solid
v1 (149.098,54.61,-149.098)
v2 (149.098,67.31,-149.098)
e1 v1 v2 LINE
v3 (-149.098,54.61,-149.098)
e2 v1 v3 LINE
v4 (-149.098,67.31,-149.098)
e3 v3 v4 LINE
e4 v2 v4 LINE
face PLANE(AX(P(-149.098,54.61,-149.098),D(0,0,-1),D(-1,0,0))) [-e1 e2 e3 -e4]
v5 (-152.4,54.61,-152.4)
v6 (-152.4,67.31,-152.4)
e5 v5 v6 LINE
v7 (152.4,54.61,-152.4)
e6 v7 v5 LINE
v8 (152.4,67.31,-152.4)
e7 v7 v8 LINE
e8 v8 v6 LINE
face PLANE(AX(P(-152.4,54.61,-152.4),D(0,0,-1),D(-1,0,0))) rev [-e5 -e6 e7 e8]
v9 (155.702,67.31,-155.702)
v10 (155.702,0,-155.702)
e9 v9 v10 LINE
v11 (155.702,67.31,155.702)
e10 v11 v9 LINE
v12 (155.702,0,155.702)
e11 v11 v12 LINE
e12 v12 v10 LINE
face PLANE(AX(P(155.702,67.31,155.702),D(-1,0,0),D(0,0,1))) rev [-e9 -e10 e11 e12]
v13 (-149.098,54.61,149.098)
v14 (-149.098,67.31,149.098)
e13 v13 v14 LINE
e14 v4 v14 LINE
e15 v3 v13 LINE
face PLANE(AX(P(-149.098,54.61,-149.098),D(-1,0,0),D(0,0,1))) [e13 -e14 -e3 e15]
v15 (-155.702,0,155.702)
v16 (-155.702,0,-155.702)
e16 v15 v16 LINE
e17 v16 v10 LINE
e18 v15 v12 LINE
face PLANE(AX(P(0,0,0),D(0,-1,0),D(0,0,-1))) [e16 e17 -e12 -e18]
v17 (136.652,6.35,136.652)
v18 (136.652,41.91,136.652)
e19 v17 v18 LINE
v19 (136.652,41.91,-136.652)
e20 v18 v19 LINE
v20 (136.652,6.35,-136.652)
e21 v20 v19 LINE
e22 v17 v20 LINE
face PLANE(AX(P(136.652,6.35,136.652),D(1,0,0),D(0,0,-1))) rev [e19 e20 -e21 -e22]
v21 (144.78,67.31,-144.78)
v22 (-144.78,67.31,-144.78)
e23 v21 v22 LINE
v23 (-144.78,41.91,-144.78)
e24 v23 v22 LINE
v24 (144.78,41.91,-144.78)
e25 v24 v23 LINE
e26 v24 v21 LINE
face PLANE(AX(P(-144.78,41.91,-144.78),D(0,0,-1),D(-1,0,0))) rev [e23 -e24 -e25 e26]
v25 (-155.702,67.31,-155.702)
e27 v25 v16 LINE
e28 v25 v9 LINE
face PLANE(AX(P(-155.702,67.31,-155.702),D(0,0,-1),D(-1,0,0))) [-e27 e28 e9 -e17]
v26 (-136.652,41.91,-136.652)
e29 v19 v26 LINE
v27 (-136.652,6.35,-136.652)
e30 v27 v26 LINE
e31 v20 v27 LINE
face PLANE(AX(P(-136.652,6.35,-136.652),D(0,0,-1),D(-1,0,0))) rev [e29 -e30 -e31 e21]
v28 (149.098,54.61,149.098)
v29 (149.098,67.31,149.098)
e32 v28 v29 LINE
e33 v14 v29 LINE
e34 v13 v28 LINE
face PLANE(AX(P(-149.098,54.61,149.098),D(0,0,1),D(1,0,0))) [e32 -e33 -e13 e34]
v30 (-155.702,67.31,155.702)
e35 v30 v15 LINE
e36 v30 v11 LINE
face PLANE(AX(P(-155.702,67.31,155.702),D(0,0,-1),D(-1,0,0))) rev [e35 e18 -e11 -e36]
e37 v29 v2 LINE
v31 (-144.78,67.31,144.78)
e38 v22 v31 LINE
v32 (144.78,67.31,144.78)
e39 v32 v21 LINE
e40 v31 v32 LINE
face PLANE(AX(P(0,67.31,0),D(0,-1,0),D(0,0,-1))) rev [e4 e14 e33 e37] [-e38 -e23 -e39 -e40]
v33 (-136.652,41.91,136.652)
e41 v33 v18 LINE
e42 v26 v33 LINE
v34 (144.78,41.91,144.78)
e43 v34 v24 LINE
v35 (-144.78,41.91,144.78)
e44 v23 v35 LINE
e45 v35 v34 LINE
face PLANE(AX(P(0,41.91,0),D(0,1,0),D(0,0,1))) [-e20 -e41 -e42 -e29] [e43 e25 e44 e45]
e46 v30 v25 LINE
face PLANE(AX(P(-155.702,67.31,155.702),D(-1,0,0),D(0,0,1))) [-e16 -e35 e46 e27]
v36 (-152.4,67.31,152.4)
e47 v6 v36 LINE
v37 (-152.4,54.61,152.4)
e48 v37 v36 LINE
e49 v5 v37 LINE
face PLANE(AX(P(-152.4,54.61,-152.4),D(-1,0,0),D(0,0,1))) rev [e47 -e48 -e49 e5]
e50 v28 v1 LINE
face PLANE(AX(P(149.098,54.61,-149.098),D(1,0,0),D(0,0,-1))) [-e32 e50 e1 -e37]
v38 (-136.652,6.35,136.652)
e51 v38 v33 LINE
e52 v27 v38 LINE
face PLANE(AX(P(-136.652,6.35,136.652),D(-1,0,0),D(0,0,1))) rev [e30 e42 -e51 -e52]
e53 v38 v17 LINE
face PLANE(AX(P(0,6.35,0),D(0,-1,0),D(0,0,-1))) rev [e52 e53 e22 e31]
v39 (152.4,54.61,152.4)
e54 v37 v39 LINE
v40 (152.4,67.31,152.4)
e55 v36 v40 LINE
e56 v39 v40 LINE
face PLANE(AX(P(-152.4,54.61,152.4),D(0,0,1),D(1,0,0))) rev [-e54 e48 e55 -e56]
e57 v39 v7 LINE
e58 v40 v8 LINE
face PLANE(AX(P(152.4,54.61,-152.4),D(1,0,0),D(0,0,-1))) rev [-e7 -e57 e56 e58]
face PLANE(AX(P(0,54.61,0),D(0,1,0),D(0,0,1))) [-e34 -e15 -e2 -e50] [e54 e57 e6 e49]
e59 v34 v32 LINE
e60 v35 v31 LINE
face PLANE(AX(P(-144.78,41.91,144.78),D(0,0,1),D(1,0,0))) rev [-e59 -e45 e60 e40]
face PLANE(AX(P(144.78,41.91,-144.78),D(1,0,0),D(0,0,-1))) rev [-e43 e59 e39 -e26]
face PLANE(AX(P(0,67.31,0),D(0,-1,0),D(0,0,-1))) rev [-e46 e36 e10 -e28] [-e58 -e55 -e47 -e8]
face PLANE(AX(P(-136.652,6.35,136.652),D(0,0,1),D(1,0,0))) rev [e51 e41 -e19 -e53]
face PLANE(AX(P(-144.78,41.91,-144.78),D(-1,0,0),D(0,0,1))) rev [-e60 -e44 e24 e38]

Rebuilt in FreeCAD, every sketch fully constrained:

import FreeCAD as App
import Part
import Sketcher
from FreeCAD import Vector
Q = App.Units.Quantity

doc = App.newDocument("Part")
body = doc.addObject("PartDesign::Body", "Body")

# Sketch on XZ plane
sketch1 = body.newObject("Sketcher::SketchObject", "Sketch")
sketch1.AttachmentSupport = (doc.getObject("XZ_Plane"), [""])
sketch1.MapMode = "FlatFace"
sketch1.addGeometry(Part.LineSegment(Vector(-156, -156, 0), Vector(-156, 156, 0)), False)
sketch1.addGeometry(Part.LineSegment(Vector(-156, 156, 0), Vector(156, 156, 0)), False)
sketch1.addGeometry(Part.LineSegment(Vector(156, 156, 0), Vector(156, -156, 0)), False)
sketch1.addGeometry(Part.LineSegment(Vector(156, -156, 0), Vector(-156, -156, 0)), False)
sketch1.addConstraint(Sketcher.Constraint("Coincident", 0, 2, 1, 1))
sketch1.addConstraint(Sketcher.Constraint("Coincident", 1, 2, 2, 1))
sketch1.addConstraint(Sketcher.Constraint("Coincident", 2, 2, 3, 1))
sketch1.addConstraint(Sketcher.Constraint("Coincident", 3, 2, 0, 1))
sketch1.addConstraint(Sketcher.Constraint("Vertical", 0))
sketch1.addConstraint(Sketcher.Constraint("Horizontal", 1))
sketch1.addConstraint(Sketcher.Constraint("Vertical", 2))
sketch1.addConstraint(Sketcher.Constraint("Horizontal", 3))
sketch1.addConstraint(Sketcher.Constraint("Symmetric", 0, 2, 2, 2, -1, 1))
sketch1.addConstraint(Sketcher.Constraint("Equal", 3, 0))
sketch1.addConstraint(Sketcher.Constraint("DistanceX", 1, 1, 1, 2, Q("12.26 in")))
pad1 = body.newObject("PartDesign::Pad", "Pad")
pad1.Profile = sketch1
pad1.Length = Q("2.65 in")
pad1.Reversed = True

# Sketch on XZ plane
sketch2 = body.newObject("Sketcher::SketchObject", "Sketch001")
sketch2.AttachmentSupport = (doc.getObject("XZ_Plane"), [""])
sketch2.MapMode = "FlatFace"
sketch2.AttachmentOffset = App.Placement(Vector(0, 0, -2.65 * 25.4), App.Rotation())
sketch2.addGeometry(Part.LineSegment(Vector(-145, -145, 0), Vector(-145, 145, 0)), False)
sketch2.addGeometry(Part.LineSegment(Vector(-145, 145, 0), Vector(145, 145, 0)), False)
sketch2.addGeometry(Part.LineSegment(Vector(145, 145, 0), Vector(145, -145, 0)), False)
sketch2.addGeometry(Part.LineSegment(Vector(145, -145, 0), Vector(-145, -145, 0)), False)
sketch2.addConstraint(Sketcher.Constraint("Coincident", 0, 2, 1, 1))
sketch2.addConstraint(Sketcher.Constraint("Coincident", 1, 2, 2, 1))
sketch2.addConstraint(Sketcher.Constraint("Coincident", 2, 2, 3, 1))
sketch2.addConstraint(Sketcher.Constraint("Coincident", 3, 2, 0, 1))
sketch2.addConstraint(Sketcher.Constraint("Vertical", 0))
sketch2.addConstraint(Sketcher.Constraint("Horizontal", 1))
sketch2.addConstraint(Sketcher.Constraint("Vertical", 2))
sketch2.addConstraint(Sketcher.Constraint("Horizontal", 3))
sketch2.addConstraint(Sketcher.Constraint("Symmetric", 0, 2, 2, 2, -1, 1))
sketch2.addConstraint(Sketcher.Constraint("Equal", 3, 0))
sketch2.addConstraint(Sketcher.Constraint("DistanceX", 1, 1, 1, 2, Q("11.4 in")))
pocket1 = body.newObject("PartDesign::Pocket", "Pocket")
pocket1.Profile = sketch2
pocket1.Length = Q("1 in")
pocket1.Reversed = True

# Sketch on XZ plane
sketch3 = body.newObject("Sketcher::SketchObject", "Sketch002")
sketch3.AttachmentSupport = (doc.getObject("XZ_Plane"), [""])
sketch3.MapMode = "FlatFace"
sketch3.AttachmentOffset = App.Placement(Vector(0, 0, -2.65 * 25.4), App.Rotation())
sketch3.addGeometry(Part.LineSegment(Vector(-137, -137, 0), Vector(-137, 137, 0)), False)
sketch3.addGeometry(Part.LineSegment(Vector(-137, 137, 0), Vector(137, 137, 0)), False)
sketch3.addGeometry(Part.LineSegment(Vector(137, 137, 0), Vector(137, -137, 0)), False)
sketch3.addGeometry(Part.LineSegment(Vector(137, -137, 0), Vector(-137, -137, 0)), False)
sketch3.addConstraint(Sketcher.Constraint("Coincident", 0, 2, 1, 1))
sketch3.addConstraint(Sketcher.Constraint("Coincident", 1, 2, 2, 1))
sketch3.addConstraint(Sketcher.Constraint("Coincident", 2, 2, 3, 1))
sketch3.addConstraint(Sketcher.Constraint("Coincident", 3, 2, 0, 1))
sketch3.addConstraint(Sketcher.Constraint("Vertical", 0))
sketch3.addConstraint(Sketcher.Constraint("Horizontal", 1))
sketch3.addConstraint(Sketcher.Constraint("Vertical", 2))
sketch3.addConstraint(Sketcher.Constraint("Horizontal", 3))
sketch3.addConstraint(Sketcher.Constraint("Symmetric", 0, 2, 2, 2, -1, 1))
sketch3.addConstraint(Sketcher.Constraint("Equal", 3, 0))
sketch3.addConstraint(Sketcher.Constraint("DistanceX", 1, 1, 1, 2, Q("10.76 in")))
pocket2 = body.newObject("PartDesign::Pocket", "Pocket001")
pocket2.Profile = sketch3
pocket2.Length = Q("2.4 in")
pocket2.Reversed = True

# Sketch on XZ plane
sketch4 = body.newObject("Sketcher::SketchObject", "Sketch003")
sketch4.AttachmentSupport = (doc.getObject("XZ_Plane"), [""])
sketch4.MapMode = "FlatFace"
sketch4.AttachmentOffset = App.Placement(Vector(0, 0, -2.65 * 25.4), App.Rotation())
sketch4.addGeometry(Part.LineSegment(Vector(-152, -152, 0), Vector(-152, 152, 0)), False)
sketch4.addGeometry(Part.LineSegment(Vector(-152, 152, 0), Vector(152, 152, 0)), False)
sketch4.addGeometry(Part.LineSegment(Vector(152, 152, 0), Vector(152, -152, 0)), False)
sketch4.addGeometry(Part.LineSegment(Vector(152, -152, 0), Vector(-152, -152, 0)), False)
sketch4.addGeometry(Part.LineSegment(Vector(149, 149, 0), Vector(-149, 149, 0)), False)
sketch4.addGeometry(Part.LineSegment(Vector(-149, 149, 0), Vector(-149, -149, 0)), False)
sketch4.addGeometry(Part.LineSegment(Vector(-149, -149, 0), Vector(149, -149, 0)), False)
sketch4.addGeometry(Part.LineSegment(Vector(149, -149, 0), Vector(149, 149, 0)), False)
sketch4.addConstraint(Sketcher.Constraint("Coincident", 0, 2, 1, 1))
sketch4.addConstraint(Sketcher.Constraint("Coincident", 1, 2, 2, 1))
sketch4.addConstraint(Sketcher.Constraint("Coincident", 2, 2, 3, 1))
sketch4.addConstraint(Sketcher.Constraint("Coincident", 3, 2, 0, 1))
sketch4.addConstraint(Sketcher.Constraint("Coincident", 4, 2, 5, 1))
sketch4.addConstraint(Sketcher.Constraint("Coincident", 5, 2, 6, 1))
sketch4.addConstraint(Sketcher.Constraint("Coincident", 6, 2, 7, 1))
sketch4.addConstraint(Sketcher.Constraint("Coincident", 7, 2, 4, 1))
sketch4.addConstraint(Sketcher.Constraint("Vertical", 0))
sketch4.addConstraint(Sketcher.Constraint("Horizontal", 1))
sketch4.addConstraint(Sketcher.Constraint("Vertical", 2))
sketch4.addConstraint(Sketcher.Constraint("Horizontal", 3))
sketch4.addConstraint(Sketcher.Constraint("Horizontal", 4))
sketch4.addConstraint(Sketcher.Constraint("Vertical", 5))
sketch4.addConstraint(Sketcher.Constraint("Horizontal", 6))
sketch4.addConstraint(Sketcher.Constraint("Vertical", 7))
sketch4.addConstraint(Sketcher.Constraint("Symmetric", 0, 2, 2, 2, -1, 1))
sketch4.addConstraint(Sketcher.Constraint("Symmetric", 4, 2, 6, 2, -1, 1))
sketch4.addConstraint(Sketcher.Constraint("Equal", 3, 0))
sketch4.addConstraint(Sketcher.Constraint("Equal", 6, 5))
sketch4.addConstraint(Sketcher.Constraint("DistanceX", 1, 1, 1, 2, Q("12 in")))
sketch4.addConstraint(Sketcher.Constraint("DistanceX", 4, 2, 4, 1, Q("11.74 in")))
pocket3 = body.newObject("PartDesign::Pocket", "Pocket002")
pocket3.Profile = sketch4
pocket3.Length = Q("0.5 in")
pocket3.Reversed = True

doc.recompute()
